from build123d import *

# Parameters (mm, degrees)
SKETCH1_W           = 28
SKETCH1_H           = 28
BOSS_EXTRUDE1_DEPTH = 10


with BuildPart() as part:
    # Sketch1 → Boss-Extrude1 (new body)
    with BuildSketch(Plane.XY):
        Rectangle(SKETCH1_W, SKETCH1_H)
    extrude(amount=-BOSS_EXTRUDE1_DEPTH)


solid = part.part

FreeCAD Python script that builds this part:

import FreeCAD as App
import Part
import Sketcher

V = App.Vector


def add_polygon(sketch, points):
    """Adds a closed chain of lines whose ends are joined by coincident constraints."""
    first, n = sketch.GeometryCount, len(points)
    for a, b in zip(points, points[1:] + points[:1]):
        sketch.addGeometry(Part.LineSegment(App.Vector(*a, 0), App.Vector(*b, 0)), False)
    for i in range(n):
        sketch.addConstraint(Sketcher.Constraint("Coincident", first + i, 2, first + (i + 1) % n, 1))

doc = App.newDocument("Part")
body = doc.addObject("PartDesign::Body", "Body")

# Sketch on XY plane
sketch1 = doc.addObject("Sketcher::SketchObject", "Sketch")
body.addObject(sketch1)
sketch1.AttachmentSupport = (doc.XY_Plane, [""])
sketch1.MapMode = "FlatFace"
add_polygon(sketch1, [(-14, 14), (-14, -14), (14, -14), (14, 14)])  # lines 0-3
sketch1.addConstraint(Sketcher.Constraint("Vertical", 0))
sketch1.addConstraint(Sketcher.Constraint("Horizontal", 1))
sketch1.addConstraint(Sketcher.Constraint("Vertical", 2))
sketch1.addConstraint(Sketcher.Constraint("Horizontal", 3))
sketch1.addConstraint(Sketcher.Constraint("Symmetric", 0, 2, 2, 2, -1, 1))
sketch1.addConstraint(Sketcher.Constraint("Equal", 3, 0))
sketch1.addConstraint(Sketcher.Constraint("DistanceX", 1, 1, 1, 2, 28.0))
pad1 = doc.addObject("PartDesign::Pad", "Pad")
body.addObject(pad1)
pad1.Profile = sketch1
pad1.Length = 10
pad1.Reversed = True

doc.recompute()
